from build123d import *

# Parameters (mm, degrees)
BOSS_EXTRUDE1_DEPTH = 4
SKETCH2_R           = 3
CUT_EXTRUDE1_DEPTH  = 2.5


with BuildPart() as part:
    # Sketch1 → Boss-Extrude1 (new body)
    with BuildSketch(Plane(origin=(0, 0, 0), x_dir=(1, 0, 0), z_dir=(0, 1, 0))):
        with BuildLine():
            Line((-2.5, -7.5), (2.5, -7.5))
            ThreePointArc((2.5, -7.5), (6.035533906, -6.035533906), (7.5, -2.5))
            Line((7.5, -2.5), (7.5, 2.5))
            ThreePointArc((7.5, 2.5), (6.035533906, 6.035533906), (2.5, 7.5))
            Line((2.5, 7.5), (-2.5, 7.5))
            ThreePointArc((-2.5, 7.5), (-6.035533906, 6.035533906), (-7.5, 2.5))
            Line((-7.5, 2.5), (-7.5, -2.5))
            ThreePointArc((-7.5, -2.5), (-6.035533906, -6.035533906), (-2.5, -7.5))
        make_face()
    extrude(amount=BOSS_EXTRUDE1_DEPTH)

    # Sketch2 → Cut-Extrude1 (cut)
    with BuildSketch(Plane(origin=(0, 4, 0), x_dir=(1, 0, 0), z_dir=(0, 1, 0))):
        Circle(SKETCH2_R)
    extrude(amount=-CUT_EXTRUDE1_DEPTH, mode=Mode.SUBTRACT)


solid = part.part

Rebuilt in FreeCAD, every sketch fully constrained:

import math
import FreeCAD as App
import Part
import Sketcher
from FreeCAD import Vector

doc = App.newDocument("Part")
params = doc.addObject("Spreadsheet::Sheet", "Params")
for row, (alias, value) in enumerate([
    ("sketch1_radius", "5 mm"),
    ("sketch1_width", "5 mm"),
    ("pad1_length", "4 mm"),
    ("sketch2_diameter", "6 mm"),
    ("pocket1_length", "2.5 mm"),
], start=1):
    params.set(f"A{row}", alias)
    params.set(f"B{row}", "=" + value)
    params.setAlias(f"B{row}", alias)

body = doc.addObject("PartDesign::Body", "Body")

sketch1 = body.newObject("Sketcher::SketchObject", "Sketch")
sketch1.AttachmentSupport = (doc.getObject("XZ_Plane"), [""])
sketch1.MapMode = "FlatFace"
sketch1.addGeometry([
    Part.LineSegment(Vector(-2, 8, 0), Vector(2, 8, 0)),
    Part.ArcOfCircle(Part.Circle(Vector(2, 2, 0), Vector(0, 0, 1), 5), math.radians(0), math.radians(90)),
    Part.LineSegment(Vector(8, 2, 0), Vector(8, -2, 0)),
    Part.ArcOfCircle(Part.Circle(Vector(2, -2, 0), Vector(0, 0, 1), 5), math.radians(-90), math.radians(0)),
    Part.LineSegment(Vector(2, -8, 0), Vector(-2, -8, 0)),
    Part.ArcOfCircle(Part.Circle(Vector(-2, -2, 0), Vector(0, 0, 1), 5), math.radians(180), math.radians(270)),
    Part.LineSegment(Vector(-8, -2, 0), Vector(-8, 2, 0)),
    Part.ArcOfCircle(Part.Circle(Vector(-2, 2, 0), Vector(0, 0, 1), 5), math.radians(90), math.radians(180)),
], False)
sketch1.addConstraint([
    Sketcher.Constraint("Tangent", 0, 2, 1, 2),
    Sketcher.Constraint("Tangent", 1, 1, 2, 1),
    Sketcher.Constraint("Tangent", 2, 2, 3, 2),
    Sketcher.Constraint("Tangent", 3, 1, 4, 1),
    Sketcher.Constraint("Tangent", 4, 2, 5, 2),
    Sketcher.Constraint("Tangent", 5, 1, 6, 1),
    Sketcher.Constraint("Tangent", 6, 2, 7, 2),
    Sketcher.Constraint("Tangent", 7, 1, 0, 1),
    Sketcher.Constraint("Horizontal", 0),
    Sketcher.Constraint("Vertical", 2),
    Sketcher.Constraint("Horizontal", 4),
    Sketcher.Constraint("Vertical", 6),
    Sketcher.Constraint("Equal", 1, 3),
    Sketcher.Constraint("Equal", 3, 5),
    Sketcher.Constraint("Equal", 5, 7),
    Sketcher.Constraint("Symmetric", 1, 3, 5, 3, -1, 1),
    Sketcher.Constraint("Equal", 4, 2),
    Sketcher.Constraint("Radius", 1, 5.0),
    Sketcher.Constraint("DistanceX", 0, 1, 0, 2, 5.0),
])
sketch1.setExpression("Constraints[17]", "Params.sketch1_radius")
sketch1.setExpression("Constraints[18]", "Params.sketch1_width")
pad1 = body.newObject("PartDesign::Pad", "Pad")
pad1.Profile = sketch1
pad1.setExpression("Length", "Params.pad1_length")
pad1.Reversed = True

sketch2 = body.newObject("Sketcher::SketchObject", "Sketch001")
sketch2.AttachmentSupport = (doc.getObject("XZ_Plane"), [""])
sketch2.MapMode = "FlatFace"
sketch2.AttachmentOffset = App.Placement(Vector(0, 0, -4), App.Rotation())
sketch2.addGeometry(Part.Circle(Vector(0, 0, 0), Vector(0, 0, 1), 3), False)
sketch2.addConstraint([
    Sketcher.Constraint("Coincident", 0, 3, -1, 1),
    Sketcher.Constraint("Diameter", 0, 6.0),
])
sketch2.setExpression("Constraints[1]", "Params.sketch2_diameter")
pocket1 = body.newObject("PartDesign::Pocket", "Pocket")
pocket1.Profile = sketch2
pocket1.setExpression("Length", "Params.pocket1_length")
pocket1.Reversed = True

doc.recompute()
